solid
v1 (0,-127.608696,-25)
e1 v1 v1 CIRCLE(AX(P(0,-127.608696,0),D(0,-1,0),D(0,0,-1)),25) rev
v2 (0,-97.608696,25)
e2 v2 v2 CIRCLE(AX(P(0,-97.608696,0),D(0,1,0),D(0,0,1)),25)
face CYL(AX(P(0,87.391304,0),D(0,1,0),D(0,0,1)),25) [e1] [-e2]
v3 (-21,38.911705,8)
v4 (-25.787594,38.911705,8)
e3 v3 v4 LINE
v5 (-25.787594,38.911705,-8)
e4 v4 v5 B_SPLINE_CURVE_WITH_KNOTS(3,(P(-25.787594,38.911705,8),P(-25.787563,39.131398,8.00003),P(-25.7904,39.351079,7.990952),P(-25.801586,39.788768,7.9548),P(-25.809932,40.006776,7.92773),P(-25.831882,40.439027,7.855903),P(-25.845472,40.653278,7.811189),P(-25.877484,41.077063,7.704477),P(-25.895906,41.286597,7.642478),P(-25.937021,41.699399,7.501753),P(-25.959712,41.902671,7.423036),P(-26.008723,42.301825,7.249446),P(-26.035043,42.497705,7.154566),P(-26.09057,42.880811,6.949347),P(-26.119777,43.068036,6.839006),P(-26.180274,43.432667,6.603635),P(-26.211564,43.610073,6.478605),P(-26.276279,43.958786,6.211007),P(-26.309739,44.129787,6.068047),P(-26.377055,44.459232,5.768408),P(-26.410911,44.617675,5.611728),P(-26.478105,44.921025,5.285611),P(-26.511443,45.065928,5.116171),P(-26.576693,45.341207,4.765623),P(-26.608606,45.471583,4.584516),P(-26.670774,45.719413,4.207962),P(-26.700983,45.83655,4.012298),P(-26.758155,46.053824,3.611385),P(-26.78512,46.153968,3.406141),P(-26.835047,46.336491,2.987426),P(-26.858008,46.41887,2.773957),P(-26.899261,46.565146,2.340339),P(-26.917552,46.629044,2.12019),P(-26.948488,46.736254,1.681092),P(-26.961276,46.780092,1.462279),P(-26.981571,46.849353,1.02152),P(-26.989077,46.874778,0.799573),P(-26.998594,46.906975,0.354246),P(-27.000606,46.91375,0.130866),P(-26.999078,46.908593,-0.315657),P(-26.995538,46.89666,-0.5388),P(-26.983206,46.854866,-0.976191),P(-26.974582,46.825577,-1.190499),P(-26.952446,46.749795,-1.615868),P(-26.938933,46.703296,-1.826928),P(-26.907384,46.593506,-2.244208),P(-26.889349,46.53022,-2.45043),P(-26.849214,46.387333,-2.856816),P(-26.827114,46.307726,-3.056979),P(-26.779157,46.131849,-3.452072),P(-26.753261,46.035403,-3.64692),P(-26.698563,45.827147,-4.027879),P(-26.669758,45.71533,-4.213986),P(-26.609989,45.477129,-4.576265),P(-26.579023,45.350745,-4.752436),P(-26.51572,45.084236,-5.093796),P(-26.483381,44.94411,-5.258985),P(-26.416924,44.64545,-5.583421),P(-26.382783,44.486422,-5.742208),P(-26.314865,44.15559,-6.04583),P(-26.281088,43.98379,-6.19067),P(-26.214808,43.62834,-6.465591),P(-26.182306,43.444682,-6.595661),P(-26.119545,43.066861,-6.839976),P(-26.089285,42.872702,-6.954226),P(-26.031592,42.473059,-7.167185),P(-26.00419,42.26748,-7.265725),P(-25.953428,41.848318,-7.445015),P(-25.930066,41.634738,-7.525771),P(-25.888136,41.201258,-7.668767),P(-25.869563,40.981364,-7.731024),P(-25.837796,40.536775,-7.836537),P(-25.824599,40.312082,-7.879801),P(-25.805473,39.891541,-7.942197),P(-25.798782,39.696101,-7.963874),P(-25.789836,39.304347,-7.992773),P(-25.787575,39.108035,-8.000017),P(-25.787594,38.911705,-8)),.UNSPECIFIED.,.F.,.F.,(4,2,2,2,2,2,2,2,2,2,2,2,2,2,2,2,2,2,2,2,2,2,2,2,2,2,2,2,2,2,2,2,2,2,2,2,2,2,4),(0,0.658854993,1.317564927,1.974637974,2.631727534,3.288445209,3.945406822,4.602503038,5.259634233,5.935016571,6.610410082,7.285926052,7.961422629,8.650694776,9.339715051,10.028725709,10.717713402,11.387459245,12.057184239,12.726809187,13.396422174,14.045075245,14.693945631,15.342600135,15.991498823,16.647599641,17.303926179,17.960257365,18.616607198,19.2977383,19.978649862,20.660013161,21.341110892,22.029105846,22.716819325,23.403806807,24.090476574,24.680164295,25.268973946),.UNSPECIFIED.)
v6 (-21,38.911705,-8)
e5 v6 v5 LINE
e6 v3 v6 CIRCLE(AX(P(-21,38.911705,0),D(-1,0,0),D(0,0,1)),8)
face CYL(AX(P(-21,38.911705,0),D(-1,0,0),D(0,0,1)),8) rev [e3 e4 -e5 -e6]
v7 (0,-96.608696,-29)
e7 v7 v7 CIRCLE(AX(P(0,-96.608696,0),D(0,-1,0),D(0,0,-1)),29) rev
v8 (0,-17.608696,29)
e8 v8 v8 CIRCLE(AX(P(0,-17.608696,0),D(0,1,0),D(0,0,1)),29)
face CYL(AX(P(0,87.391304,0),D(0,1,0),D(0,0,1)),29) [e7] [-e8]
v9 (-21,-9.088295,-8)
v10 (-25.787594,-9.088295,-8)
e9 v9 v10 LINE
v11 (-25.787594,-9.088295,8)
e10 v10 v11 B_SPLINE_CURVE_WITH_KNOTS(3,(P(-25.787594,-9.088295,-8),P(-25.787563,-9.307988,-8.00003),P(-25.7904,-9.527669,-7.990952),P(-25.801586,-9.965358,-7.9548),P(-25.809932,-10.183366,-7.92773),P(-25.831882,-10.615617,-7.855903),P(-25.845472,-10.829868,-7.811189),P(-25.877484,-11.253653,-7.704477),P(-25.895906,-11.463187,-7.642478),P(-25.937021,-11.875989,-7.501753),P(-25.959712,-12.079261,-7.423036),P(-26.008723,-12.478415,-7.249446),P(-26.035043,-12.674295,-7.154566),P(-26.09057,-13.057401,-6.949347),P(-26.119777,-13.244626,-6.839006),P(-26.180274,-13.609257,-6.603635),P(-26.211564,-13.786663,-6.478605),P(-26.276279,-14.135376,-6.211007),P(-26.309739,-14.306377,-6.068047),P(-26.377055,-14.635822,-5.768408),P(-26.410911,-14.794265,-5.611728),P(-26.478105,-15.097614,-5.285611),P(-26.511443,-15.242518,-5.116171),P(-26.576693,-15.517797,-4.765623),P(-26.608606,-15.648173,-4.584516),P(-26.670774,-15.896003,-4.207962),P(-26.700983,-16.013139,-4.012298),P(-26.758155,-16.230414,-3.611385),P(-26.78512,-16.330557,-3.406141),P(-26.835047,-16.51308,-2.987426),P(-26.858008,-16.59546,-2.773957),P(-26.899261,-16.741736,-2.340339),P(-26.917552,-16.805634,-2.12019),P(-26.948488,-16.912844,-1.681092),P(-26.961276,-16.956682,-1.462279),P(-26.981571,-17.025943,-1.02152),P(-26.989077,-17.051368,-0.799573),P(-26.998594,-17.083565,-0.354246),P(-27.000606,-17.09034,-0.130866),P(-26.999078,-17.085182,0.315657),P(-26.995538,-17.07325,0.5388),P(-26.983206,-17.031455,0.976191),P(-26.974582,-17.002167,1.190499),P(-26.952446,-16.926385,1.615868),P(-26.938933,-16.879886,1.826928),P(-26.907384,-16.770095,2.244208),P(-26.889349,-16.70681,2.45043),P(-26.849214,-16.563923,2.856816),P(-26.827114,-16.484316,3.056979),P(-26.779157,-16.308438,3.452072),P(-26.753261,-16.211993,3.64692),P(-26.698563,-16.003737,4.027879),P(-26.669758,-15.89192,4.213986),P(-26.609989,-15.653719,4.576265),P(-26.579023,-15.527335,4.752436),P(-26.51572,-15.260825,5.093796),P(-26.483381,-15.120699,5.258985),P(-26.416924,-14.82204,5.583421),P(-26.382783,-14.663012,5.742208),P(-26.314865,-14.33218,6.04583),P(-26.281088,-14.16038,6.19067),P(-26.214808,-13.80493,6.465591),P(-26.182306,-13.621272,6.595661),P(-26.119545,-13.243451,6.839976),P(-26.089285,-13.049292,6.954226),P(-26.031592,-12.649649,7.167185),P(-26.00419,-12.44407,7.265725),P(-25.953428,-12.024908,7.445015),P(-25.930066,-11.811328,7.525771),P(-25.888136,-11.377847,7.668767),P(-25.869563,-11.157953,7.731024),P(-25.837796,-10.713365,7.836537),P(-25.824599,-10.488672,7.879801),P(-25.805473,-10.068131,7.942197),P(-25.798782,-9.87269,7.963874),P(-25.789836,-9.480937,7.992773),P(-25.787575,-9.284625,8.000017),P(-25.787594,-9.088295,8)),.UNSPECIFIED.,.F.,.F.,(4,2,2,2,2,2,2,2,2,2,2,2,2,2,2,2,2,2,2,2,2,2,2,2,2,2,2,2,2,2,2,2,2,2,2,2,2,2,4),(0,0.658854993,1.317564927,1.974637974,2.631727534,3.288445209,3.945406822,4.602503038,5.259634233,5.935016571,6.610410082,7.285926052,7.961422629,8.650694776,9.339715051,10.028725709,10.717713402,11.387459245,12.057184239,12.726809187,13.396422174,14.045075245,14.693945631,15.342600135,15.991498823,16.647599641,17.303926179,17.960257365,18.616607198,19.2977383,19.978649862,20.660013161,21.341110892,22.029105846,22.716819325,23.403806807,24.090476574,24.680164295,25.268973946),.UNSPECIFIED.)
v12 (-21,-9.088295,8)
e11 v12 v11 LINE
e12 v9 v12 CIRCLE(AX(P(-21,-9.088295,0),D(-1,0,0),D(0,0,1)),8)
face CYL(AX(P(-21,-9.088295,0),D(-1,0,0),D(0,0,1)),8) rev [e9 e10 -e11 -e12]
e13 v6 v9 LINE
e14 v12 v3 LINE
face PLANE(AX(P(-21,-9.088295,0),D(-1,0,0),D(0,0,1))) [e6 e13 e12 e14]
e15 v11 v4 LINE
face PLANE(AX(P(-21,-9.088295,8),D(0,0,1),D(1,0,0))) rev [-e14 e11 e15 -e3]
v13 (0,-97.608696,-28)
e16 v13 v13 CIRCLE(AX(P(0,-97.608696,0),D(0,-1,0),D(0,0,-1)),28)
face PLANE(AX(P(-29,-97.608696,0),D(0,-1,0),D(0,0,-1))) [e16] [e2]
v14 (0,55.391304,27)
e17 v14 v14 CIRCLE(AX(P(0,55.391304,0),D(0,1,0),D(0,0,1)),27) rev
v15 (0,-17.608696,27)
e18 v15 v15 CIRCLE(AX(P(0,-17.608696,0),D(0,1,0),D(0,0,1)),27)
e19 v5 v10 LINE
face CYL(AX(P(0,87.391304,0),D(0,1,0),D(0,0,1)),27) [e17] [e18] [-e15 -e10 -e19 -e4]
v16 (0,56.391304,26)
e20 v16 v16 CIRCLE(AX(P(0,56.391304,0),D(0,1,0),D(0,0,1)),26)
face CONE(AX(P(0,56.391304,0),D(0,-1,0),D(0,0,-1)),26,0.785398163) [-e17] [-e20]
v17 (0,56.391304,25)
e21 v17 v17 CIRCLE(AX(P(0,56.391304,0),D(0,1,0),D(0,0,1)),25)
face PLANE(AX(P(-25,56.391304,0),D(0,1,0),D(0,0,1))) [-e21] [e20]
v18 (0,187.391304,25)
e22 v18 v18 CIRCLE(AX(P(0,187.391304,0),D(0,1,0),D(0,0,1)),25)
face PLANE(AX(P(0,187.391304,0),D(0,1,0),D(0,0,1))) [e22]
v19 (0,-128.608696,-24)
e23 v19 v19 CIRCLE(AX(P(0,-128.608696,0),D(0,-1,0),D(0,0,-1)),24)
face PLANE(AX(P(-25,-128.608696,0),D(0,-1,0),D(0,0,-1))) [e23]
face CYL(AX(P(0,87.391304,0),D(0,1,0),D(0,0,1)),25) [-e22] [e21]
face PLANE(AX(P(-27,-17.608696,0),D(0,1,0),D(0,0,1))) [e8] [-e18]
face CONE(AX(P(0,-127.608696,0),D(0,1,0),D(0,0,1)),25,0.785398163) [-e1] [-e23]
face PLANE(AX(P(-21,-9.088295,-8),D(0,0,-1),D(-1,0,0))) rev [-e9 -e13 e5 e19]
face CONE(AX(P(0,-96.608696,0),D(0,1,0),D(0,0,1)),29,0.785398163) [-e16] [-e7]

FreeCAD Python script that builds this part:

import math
import FreeCAD as App
import Part
import Sketcher

V = App.Vector


def edges_at(feature, points):
    """Names of the edges that pass closest to the given points."""
    edges = feature.Shape.Edges
    near = lambda p: min(range(len(edges)), key=lambda i: edges[i].distToShape(Part.Vertex(*p))[0])
    return sorted({f"Edge{near(p) + 1}" for p in points})

doc = App.newDocument("Part")
body = doc.addObject("PartDesign::Body", "Body")

sketch1 = doc.addObject("Sketcher::SketchObject", "Sketch")
body.addObject(sketch1)
sketch1.AttachmentSupport = (doc.XY_Plane, [""])
sketch1.MapMode = "FlatFace"
sketch1.addGeometry(Part.LineSegment(V(0, -128.6, 0), V(0, 87.4, 0)), False)
sketch1.addGeometry(Part.LineSegment(V(0, 87.4, 0), V(-25, 87.4, 0)), False)
sketch1.addGeometry(Part.LineSegment(V(-25, 87.4, 0), V(-25, 56.4, 0)), False)
sketch1.addGeometry(Part.LineSegment(V(-25, 56.4, 0), V(-27, 56.4, 0)), False)
sketch1.addGeometry(Part.LineSegment(V(-27, 56.4, 0), V(-27, -17.6, 0)), False)
sketch1.addGeometry(Part.LineSegment(V(-27, -17.6, 0), V(-29, -17.6, 0)), False)
sketch1.addGeometry(Part.LineSegment(V(-29, -17.6, 0), V(-29, -97.6, 0)), False)
sketch1.addGeometry(Part.LineSegment(V(-29, -97.6, 0), V(-25, -97.6, 0)), False)
sketch1.addGeometry(Part.LineSegment(V(-25, -97.6, 0), V(-25, -128.6, 0)), False)
sketch1.addGeometry(Part.LineSegment(V(-25, -128.6, 0), V(0, -128.6, 0)), False)
sketch1.addConstraint(Sketcher.Constraint("Coincident", 0, 2, 1, 1))
sketch1.addConstraint(Sketcher.Constraint("Coincident", 1, 2, 2, 1))
sketch1.addConstraint(Sketcher.Constraint("Coincident", 2, 2, 3, 1))
sketch1.addConstraint(Sketcher.Constraint("Coincident", 3, 2, 4, 1))
sketch1.addConstraint(Sketcher.Constraint("Coincident", 4, 2, 5, 1))
sketch1.addConstraint(Sketcher.Constraint("Coincident", 5, 2, 6, 1))
sketch1.addConstraint(Sketcher.Constraint("Coincident", 6, 2, 7, 1))
sketch1.addConstraint(Sketcher.Constraint("Coincident", 7, 2, 8, 1))
sketch1.addConstraint(Sketcher.Constraint("Coincident", 8, 2, 9, 1))
sketch1.addConstraint(Sketcher.Constraint("Coincident", 9, 2, 0, 1))
sketch1.addConstraint(Sketcher.Constraint("Vertical", 0))
sketch1.addConstraint(Sketcher.Constraint("Horizontal", 1))
sketch1.addConstraint(Sketcher.Constraint("Vertical", 2))
sketch1.addConstraint(Sketcher.Constraint("Horizontal", 3))
sketch1.addConstraint(Sketcher.Constraint("Vertical", 4))
sketch1.addConstraint(Sketcher.Constraint("Horizontal", 5))
sketch1.addConstraint(Sketcher.Constraint("Vertical", 6))
sketch1.addConstraint(Sketcher.Constraint("Horizontal", 7))
sketch1.addConstraint(Sketcher.Constraint("Vertical", 8))
sketch1.addConstraint(Sketcher.Constraint("Horizontal", 9))
sketch1.addConstraint(Sketcher.Constraint("PointOnObject", 0, 2, -2))
sketch1.addConstraint(Sketcher.Constraint("Vertical", 2, 2, 7, 2))
sketch1.addConstraint(Sketcher.Constraint("Equal", 3, 5))
sketch1.addConstraint(Sketcher.Constraint("Equal", 2, 8))
sketch1.addConstraint(Sketcher.Constraint("DistanceX", 1, 2, 1, 1, 25.0))
sketch1.addConstraint(Sketcher.Constraint("DistanceX", 3, 2, 3, 1, 2.0))
sketch1.addConstraint(Sketcher.Constraint("DistanceY", 0, 1, 0, 2, 216.0))
sketch1.addConstraint(Sketcher.Constraint("DistanceY", 2, 2, 2, 1, 31.0))
sketch1.addConstraint(Sketcher.Constraint("DistanceY", 4, 2, 4, 1, 74.0))
sketch1.addConstraint(Sketcher.Constraint("DistanceY", -1, 1, 0, 2, 87.391304))
revolution = doc.addObject("PartDesign::Revolution", "Revolution")
body.addObject(revolution)
revolution.Profile = sketch1
revolution.ReferenceAxis = (sketch1, ["V_Axis"])
revolution.Angle = 360
doc.recompute()

chamfer = doc.addObject("PartDesign::Chamfer", "Chamfer")
body.addObject(chamfer)
chamfer.Base = (revolution, edges_at(revolution, [(27, 56.391, 0), (25, -128.609, 0), (29, -97.609, 0)]))
chamfer.Size = 1

sketch2 = doc.addObject("Sketcher::SketchObject", "Sketch001")
body.addObject(sketch2)
sketch2.AttachmentSupport = (doc.YZ_Plane, [""])
sketch2.MapMode = "FlatFace"
sketch2.AttachmentOffset = App.Placement(V(0, 0, -27), App.Rotation())
sketch2.addGeometry(Part.LineSegment(V(39, -8, 0), V(-9, -8, 0)), False)
sketch2.addGeometry(Part.ArcOfCircle(Part.Circle(V(-9, 0, 0), V(0, 0, 1), 8), math.radians(90), math.radians(270)), False)
sketch2.addGeometry(Part.LineSegment(V(-9, 8, 0), V(39, 8, 0)), False)
sketch2.addGeometry(Part.ArcOfCircle(Part.Circle(V(39, 0, 0), V(0, 0, 1), 8), math.radians(-90), math.radians(90)), False)
sketch2.addConstraint(Sketcher.Constraint("Tangent", 0, 2, 1, 2))
sketch2.addConstraint(Sketcher.Constraint("Tangent", 1, 1, 2, 1))
sketch2.addConstraint(Sketcher.Constraint("Tangent", 2, 2, 3, 2))
sketch2.addConstraint(Sketcher.Constraint("Tangent", 3, 1, 0, 1))
sketch2.addConstraint(Sketcher.Constraint("Horizontal", 0))
sketch2.addConstraint(Sketcher.Constraint("Horizontal", 2))
sketch2.addConstraint(Sketcher.Constraint("PointOnObject", 1, 3, -1))
sketch2.addConstraint(Sketcher.Constraint("Radius", 1, 8.0))
sketch2.addConstraint(Sketcher.Constraint("DistanceX", 0, 2, 0, 1, 48.0))
sketch2.addConstraint(Sketcher.Constraint("DistanceX", 1, 3, -1, 1, 9.088295))
pocket1 = doc.addObject("PartDesign::Pocket", "Pocket")
body.addObject(pocket1)
pocket1.Profile = sketch2
pocket1.Length = 6
pocket1.Reversed = True

sketch3 = doc.addObject("Sketcher::SketchObject", "Sketch002")
body.addObject(sketch3)
sketch3.AttachmentSupport = (doc.XZ_Plane, [""])
sketch3.MapMode = "FlatFace"
sketch3.AttachmentOffset = App.Placement(V(0, 0, -87.391304), App.Rotation())
sketch3.addGeometry(Part.Circle(V(0, 0, 0), V(0, 0, 1), 25), False)
sketch3.addConstraint(Sketcher.Constraint("Coincident", 0, 3, -1, 1))
sketch3.addConstraint(Sketcher.Constraint("Diameter", 0, 50.0))
pad1 = doc.addObject("PartDesign::Pad", "Pad")
body.addObject(pad1)
pad1.Profile = sketch3
pad1.Length = 100
pad1.Reversed = True

doc.recompute()
